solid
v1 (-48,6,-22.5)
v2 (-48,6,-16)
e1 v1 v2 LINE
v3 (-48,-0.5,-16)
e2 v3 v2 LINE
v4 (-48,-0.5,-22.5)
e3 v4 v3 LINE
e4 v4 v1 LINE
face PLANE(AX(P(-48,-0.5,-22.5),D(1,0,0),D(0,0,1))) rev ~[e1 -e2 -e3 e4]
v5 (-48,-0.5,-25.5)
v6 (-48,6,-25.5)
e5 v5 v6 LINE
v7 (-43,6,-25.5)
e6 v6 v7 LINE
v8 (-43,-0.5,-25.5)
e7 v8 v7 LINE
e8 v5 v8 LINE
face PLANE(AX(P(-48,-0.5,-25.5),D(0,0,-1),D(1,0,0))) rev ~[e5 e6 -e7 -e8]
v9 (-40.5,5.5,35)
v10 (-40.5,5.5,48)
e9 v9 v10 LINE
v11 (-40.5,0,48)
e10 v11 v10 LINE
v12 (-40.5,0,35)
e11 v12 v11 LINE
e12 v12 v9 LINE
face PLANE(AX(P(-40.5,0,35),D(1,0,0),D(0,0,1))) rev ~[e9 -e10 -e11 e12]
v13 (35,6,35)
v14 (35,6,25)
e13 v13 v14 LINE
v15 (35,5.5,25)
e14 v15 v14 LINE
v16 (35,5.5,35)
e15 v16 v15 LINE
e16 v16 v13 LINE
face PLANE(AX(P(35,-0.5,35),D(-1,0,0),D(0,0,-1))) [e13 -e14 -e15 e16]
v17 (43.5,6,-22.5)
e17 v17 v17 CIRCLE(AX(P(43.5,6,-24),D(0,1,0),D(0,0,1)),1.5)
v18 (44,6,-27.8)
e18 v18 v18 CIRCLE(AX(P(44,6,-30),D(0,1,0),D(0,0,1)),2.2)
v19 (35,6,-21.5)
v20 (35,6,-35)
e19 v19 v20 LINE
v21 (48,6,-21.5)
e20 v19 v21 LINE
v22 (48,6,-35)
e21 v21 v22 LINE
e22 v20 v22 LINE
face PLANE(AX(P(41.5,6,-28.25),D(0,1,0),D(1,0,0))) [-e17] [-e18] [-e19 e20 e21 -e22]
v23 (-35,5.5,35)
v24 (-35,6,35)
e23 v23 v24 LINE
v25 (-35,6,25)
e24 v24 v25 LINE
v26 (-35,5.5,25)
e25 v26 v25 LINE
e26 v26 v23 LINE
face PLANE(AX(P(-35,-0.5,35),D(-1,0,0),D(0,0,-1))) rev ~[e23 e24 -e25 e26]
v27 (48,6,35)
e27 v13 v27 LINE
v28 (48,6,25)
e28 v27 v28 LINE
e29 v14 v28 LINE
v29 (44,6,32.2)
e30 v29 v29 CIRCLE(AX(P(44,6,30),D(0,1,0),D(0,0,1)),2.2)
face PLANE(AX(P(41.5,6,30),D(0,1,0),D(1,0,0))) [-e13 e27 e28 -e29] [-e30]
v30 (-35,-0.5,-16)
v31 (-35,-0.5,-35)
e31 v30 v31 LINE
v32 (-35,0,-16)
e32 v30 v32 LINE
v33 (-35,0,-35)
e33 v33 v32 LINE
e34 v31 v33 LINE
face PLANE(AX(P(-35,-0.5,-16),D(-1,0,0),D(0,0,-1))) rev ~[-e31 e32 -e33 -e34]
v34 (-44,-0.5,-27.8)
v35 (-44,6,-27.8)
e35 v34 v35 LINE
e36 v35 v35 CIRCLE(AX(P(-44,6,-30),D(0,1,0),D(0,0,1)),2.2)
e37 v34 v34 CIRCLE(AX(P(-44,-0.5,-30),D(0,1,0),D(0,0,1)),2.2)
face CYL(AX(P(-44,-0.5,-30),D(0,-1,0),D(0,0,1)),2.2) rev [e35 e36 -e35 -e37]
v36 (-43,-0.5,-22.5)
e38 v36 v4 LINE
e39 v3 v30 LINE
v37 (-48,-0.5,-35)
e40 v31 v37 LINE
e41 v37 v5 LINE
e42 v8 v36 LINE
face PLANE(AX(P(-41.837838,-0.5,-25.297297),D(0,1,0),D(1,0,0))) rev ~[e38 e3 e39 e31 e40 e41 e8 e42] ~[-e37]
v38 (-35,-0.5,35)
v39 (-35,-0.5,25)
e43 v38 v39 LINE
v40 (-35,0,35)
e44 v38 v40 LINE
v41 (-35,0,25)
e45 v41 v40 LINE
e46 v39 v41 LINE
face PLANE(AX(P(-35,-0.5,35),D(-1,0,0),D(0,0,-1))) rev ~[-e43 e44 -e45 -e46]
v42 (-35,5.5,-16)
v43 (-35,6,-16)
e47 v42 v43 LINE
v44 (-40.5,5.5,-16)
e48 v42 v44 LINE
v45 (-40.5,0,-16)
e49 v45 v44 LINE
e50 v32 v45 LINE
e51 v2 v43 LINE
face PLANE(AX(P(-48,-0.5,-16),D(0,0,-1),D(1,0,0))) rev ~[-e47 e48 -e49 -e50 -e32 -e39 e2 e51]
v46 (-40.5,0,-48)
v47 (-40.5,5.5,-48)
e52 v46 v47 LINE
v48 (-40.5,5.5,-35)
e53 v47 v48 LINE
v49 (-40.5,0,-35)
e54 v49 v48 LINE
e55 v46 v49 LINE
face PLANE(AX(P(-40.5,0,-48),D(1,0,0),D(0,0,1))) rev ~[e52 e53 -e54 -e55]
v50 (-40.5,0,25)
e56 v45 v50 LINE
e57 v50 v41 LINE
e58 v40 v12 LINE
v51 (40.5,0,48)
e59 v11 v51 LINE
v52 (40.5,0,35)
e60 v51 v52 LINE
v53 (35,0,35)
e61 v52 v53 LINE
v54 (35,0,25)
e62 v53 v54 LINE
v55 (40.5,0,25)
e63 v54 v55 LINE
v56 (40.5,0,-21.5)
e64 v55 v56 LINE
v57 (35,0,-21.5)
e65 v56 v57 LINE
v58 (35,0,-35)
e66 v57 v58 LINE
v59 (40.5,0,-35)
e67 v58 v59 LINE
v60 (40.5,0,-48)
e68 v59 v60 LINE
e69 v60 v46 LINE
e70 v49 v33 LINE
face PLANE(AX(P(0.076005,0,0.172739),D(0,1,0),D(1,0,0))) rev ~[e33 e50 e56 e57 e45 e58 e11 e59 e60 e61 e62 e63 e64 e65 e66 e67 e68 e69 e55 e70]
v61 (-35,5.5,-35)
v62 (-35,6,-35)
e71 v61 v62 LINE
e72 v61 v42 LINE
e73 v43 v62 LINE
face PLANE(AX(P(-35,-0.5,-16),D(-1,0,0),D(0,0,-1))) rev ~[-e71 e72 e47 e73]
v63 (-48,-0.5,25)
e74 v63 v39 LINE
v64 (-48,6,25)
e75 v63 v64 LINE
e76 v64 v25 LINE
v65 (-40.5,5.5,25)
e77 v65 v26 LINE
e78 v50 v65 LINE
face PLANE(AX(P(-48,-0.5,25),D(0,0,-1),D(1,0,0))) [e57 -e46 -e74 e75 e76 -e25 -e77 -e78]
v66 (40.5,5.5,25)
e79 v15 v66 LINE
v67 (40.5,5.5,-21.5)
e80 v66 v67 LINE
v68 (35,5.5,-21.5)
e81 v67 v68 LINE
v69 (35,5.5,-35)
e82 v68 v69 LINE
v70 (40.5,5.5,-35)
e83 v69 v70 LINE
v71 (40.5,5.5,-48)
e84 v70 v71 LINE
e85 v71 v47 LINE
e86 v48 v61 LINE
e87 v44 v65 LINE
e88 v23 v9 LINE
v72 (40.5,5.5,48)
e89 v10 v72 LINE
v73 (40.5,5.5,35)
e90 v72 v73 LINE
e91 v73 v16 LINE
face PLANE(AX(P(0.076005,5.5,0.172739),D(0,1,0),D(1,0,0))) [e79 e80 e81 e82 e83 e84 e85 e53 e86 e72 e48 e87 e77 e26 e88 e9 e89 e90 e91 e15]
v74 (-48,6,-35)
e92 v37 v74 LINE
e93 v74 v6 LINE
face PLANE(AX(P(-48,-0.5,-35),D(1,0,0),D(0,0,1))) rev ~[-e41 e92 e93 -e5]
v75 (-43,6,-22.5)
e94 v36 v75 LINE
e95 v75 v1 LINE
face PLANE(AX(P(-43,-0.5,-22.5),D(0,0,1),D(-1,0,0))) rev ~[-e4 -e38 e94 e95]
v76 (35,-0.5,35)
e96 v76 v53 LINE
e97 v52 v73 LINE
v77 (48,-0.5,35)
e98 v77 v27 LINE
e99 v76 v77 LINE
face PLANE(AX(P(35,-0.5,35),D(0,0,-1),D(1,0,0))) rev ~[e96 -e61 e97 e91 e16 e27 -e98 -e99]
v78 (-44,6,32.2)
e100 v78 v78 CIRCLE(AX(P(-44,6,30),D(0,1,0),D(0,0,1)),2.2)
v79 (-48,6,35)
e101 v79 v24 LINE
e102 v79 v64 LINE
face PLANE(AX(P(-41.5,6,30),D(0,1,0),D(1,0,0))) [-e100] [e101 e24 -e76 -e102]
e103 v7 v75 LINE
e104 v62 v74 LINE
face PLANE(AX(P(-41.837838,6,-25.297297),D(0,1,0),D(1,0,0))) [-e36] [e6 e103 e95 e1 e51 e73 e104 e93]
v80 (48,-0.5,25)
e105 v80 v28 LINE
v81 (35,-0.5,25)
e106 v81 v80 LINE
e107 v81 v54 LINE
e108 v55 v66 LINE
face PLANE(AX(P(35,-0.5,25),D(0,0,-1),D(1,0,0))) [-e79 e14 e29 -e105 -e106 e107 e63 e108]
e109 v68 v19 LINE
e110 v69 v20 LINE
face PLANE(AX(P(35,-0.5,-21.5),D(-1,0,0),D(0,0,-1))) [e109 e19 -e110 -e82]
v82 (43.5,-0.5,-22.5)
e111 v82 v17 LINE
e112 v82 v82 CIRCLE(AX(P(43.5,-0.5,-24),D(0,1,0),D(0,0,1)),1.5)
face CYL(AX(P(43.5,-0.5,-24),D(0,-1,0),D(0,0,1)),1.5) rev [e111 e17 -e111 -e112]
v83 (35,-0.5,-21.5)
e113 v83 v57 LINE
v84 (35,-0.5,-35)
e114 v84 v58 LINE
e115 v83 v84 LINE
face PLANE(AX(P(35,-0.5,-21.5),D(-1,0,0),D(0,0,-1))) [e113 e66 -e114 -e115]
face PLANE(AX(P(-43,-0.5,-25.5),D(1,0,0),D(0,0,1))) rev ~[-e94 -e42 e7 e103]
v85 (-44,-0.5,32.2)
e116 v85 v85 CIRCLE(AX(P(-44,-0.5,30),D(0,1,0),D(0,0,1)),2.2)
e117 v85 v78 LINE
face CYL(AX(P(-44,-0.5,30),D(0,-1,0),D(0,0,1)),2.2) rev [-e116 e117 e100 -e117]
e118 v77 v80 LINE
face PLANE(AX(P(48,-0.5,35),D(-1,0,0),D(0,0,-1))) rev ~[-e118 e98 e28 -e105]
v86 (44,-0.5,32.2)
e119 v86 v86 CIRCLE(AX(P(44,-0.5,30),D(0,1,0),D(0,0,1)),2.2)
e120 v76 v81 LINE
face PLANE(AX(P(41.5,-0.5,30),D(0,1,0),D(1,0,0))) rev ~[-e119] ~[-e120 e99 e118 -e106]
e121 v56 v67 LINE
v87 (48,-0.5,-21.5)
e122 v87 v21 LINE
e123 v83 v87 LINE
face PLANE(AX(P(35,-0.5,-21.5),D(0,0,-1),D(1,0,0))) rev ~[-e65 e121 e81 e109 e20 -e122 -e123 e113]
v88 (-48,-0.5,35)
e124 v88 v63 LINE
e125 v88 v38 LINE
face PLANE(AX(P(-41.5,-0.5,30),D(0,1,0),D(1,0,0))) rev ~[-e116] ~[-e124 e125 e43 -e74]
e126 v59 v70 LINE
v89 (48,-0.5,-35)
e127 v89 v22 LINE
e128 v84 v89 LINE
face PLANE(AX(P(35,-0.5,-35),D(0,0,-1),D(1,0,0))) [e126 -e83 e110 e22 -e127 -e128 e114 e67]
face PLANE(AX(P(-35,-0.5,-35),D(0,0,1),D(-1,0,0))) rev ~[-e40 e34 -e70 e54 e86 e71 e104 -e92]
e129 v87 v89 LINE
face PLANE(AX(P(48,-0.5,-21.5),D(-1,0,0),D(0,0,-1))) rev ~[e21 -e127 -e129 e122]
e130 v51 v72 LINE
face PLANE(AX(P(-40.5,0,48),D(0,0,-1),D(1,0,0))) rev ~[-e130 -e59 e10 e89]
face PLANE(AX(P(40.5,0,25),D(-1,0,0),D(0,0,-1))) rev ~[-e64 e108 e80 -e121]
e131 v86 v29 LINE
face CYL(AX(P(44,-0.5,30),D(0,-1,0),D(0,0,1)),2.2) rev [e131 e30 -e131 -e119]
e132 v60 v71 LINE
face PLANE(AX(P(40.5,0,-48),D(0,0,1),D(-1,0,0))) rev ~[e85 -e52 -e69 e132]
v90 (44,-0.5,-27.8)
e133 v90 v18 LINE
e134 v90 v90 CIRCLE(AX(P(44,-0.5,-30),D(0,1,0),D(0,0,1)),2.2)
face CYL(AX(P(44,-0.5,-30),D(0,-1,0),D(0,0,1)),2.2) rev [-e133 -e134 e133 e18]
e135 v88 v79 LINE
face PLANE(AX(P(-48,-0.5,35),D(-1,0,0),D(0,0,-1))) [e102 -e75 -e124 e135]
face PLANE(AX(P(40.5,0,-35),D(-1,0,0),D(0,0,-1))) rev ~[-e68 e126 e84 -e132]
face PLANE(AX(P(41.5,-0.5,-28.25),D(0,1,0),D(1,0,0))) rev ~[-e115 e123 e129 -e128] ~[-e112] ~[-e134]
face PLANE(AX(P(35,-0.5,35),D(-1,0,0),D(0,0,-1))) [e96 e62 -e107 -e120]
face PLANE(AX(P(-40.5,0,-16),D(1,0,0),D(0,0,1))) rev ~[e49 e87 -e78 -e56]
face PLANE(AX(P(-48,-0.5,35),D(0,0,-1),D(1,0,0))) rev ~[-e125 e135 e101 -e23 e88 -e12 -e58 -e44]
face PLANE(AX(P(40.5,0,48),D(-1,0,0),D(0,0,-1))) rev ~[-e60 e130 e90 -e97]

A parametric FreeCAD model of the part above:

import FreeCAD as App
import Part
import Sketcher

doc = App.newDocument("Part")
body = doc.addObject("PartDesign::Body", "Body")

sketch1 = body.newObject("Sketcher::SketchObject", "Sketch")
sketch1.AttachmentSupport = (doc.getObject("XZ_Plane"), [""])
sketch1.MapMode = "FlatFace"
sketch1.addGeometry([
    Part.LineSegment(App.Vector(-40.5, 48, 0), App.Vector(40.5, 48, 0)),
    Part.LineSegment(App.Vector(40.5, 48, 0), App.Vector(40.5, 35, 0)),
    Part.LineSegment(App.Vector(40.5, 35, 0), App.Vector(35, 35, 0)),
    Part.LineSegment(App.Vector(35, 35, 0), App.Vector(35, 25, 0)),
    Part.LineSegment(App.Vector(35, 25, 0), App.Vector(40.5, 25, 0)),
    Part.LineSegment(App.Vector(40.5, 25, 0), App.Vector(40.5, -21.5, 0)),
    Part.LineSegment(App.Vector(40.5, -21.5, 0), App.Vector(35, -21.5, 0)),
    Part.LineSegment(App.Vector(35, -21.5, 0), App.Vector(35, -35, 0)),
    Part.LineSegment(App.Vector(35, -35, 0), App.Vector(40.5, -35, 0)),
    Part.LineSegment(App.Vector(40.5, -35, 0), App.Vector(40.5, -48, 0)),
    Part.LineSegment(App.Vector(40.5, -48, 0), App.Vector(-40.5, -48, 0)),
    Part.LineSegment(App.Vector(-40.5, -48, 0), App.Vector(-40.5, -35, 0)),
    Part.LineSegment(App.Vector(-40.5, -35, 0), App.Vector(-35, -35, 0)),
    Part.LineSegment(App.Vector(-35, -35, 0), App.Vector(-35, -16, 0)),
    Part.LineSegment(App.Vector(-35, -16, 0), App.Vector(-40.5, -16, 0)),
    Part.LineSegment(App.Vector(-40.5, -16, 0), App.Vector(-40.5, 25, 0)),
    Part.LineSegment(App.Vector(-40.5, 25, 0), App.Vector(-35, 25, 0)),
    Part.LineSegment(App.Vector(-35, 25, 0), App.Vector(-35, 35, 0)),
    Part.LineSegment(App.Vector(-35, 35, 0), App.Vector(-40.5, 35, 0)),
    Part.LineSegment(App.Vector(-40.5, 35, 0), App.Vector(-40.5, 48, 0)),
], False)
sketch1.addConstraint([
    Sketcher.Constraint("Coincident", 0, 2, 1, 1),
    Sketcher.Constraint("Coincident", 1, 2, 2, 1),
    Sketcher.Constraint("Coincident", 2, 2, 3, 1),
    Sketcher.Constraint("Coincident", 3, 2, 4, 1),
    Sketcher.Constraint("Coincident", 4, 2, 5, 1),
    Sketcher.Constraint("Coincident", 5, 2, 6, 1),
    Sketcher.Constraint("Coincident", 6, 2, 7, 1),
    Sketcher.Constraint("Coincident", 7, 2, 8, 1),
    Sketcher.Constraint("Coincident", 8, 2, 9, 1),
    Sketcher.Constraint("Coincident", 9, 2, 10, 1),
    Sketcher.Constraint("Coincident", 10, 2, 11, 1),
    Sketcher.Constraint("Coincident", 11, 2, 12, 1),
    Sketcher.Constraint("Coincident", 12, 2, 13, 1),
    Sketcher.Constraint("Coincident", 13, 2, 14, 1),
    Sketcher.Constraint("Coincident", 14, 2, 15, 1),
    Sketcher.Constraint("Coincident", 15, 2, 16, 1),
    Sketcher.Constraint("Coincident", 16, 2, 17, 1),
    Sketcher.Constraint("Coincident", 17, 2, 18, 1),
    Sketcher.Constraint("Coincident", 18, 2, 19, 1),
    Sketcher.Constraint("Coincident", 19, 2, 0, 1),
    Sketcher.Constraint("Horizontal", 0),
    Sketcher.Constraint("Vertical", 1),
    Sketcher.Constraint("Horizontal", 2),
    Sketcher.Constraint("Vertical", 3),
    Sketcher.Constraint("Horizontal", 4),
    Sketcher.Constraint("Vertical", 5),
    Sketcher.Constraint("Horizontal", 6),
    Sketcher.Constraint("Vertical", 7),
    Sketcher.Constraint("Horizontal", 8),
    Sketcher.Constraint("Vertical", 9),
    Sketcher.Constraint("Horizontal", 10),
    Sketcher.Constraint("Vertical", 11),
    Sketcher.Constraint("Horizontal", 12),
    Sketcher.Constraint("Vertical", 13),
    Sketcher.Constraint("Horizontal", 14),
    Sketcher.Constraint("Vertical", 15),
    Sketcher.Constraint("Horizontal", 16),
    Sketcher.Constraint("Vertical", 17),
    Sketcher.Constraint("Horizontal", 18),
    Sketcher.Constraint("Vertical", 19),
    Sketcher.Constraint("Symmetric", 0, 2, 10, 2, -1, 1),
    Sketcher.Constraint("Symmetric", 2, 2, 12, 2, -1, 1),
    Sketcher.Constraint("Symmetric", 7, 2, 17, 2, -1, 1),
    Sketcher.Constraint("Symmetric", 8, 2, 11, 2, -2),
    Sketcher.Constraint("Symmetric", 4, 2, 15, 2, -2),
    Sketcher.Constraint("Vertical", 1, 2, 4, 2),
    Sketcher.Constraint("Vertical", 3, 2, 6, 2),
    Sketcher.Constraint("Vertical", 15, 2, 18, 2),
    Sketcher.Constraint("DistanceX", 0, 1, 0, 2, 81.0),
    Sketcher.Constraint("DistanceY", 1, 2, 1, 1, 13.0),
    Sketcher.Constraint("DistanceY", 3, 2, 3, 1, 10.0),
    Sketcher.Constraint("DistanceY", 13, 1, 13, 2, 19.0),
    Sketcher.Constraint("DistanceY", 15, 1, 15, 2, 41.0),
    Sketcher.Constraint("DistanceX", 2, 2, 2, 1, 5.5),
    Sketcher.Constraint("DistanceY", 5, 2, 5, 1, 46.5),
])
pad1 = body.newObject("PartDesign::Pad", "Pad")
pad1.Profile = sketch1
pad1.Length = 5.5
pad1.Reversed = True

sketch2 = body.newObject("Sketcher::SketchObject", "Sketch001")
sketch2.AttachmentSupport = (doc.getObject("XZ_Plane"), [""])
sketch2.MapMode = "FlatFace"
sketch2.addGeometry([
    Part.LineSegment(App.Vector(35, 25, 0), App.Vector(35, 35, 0)),
    Part.LineSegment(App.Vector(35, 35, 0), App.Vector(48, 35, 0)),
    Part.LineSegment(App.Vector(48, 35, 0), App.Vector(48, 25, 0)),
    Part.LineSegment(App.Vector(48, 25, 0), App.Vector(35, 25, 0)),
    Part.Circle(App.Vector(44, 30, 0), App.Vector(0, 0, 1), 2.2),
    Part.LineSegment(App.Vector(-48, 25, 0), App.Vector(-48, 35, 0)),
    Part.LineSegment(App.Vector(-48, 35, 0), App.Vector(-35, 35, 0)),
    Part.LineSegment(App.Vector(-35, 35, 0), App.Vector(-35, 25, 0)),
    Part.LineSegment(App.Vector(-35, 25, 0), App.Vector(-48, 25, 0)),
    Part.Circle(App.Vector(-44, 30, 0), App.Vector(0, 0, 1), 2.2),
    Part.LineSegment(App.Vector(35, -35, 0), App.Vector(35, -21.5, 0)),
    Part.LineSegment(App.Vector(35, -21.5, 0), App.Vector(48, -21.5, 0)),
    Part.LineSegment(App.Vector(48, -21.5, 0), App.Vector(48, -35, 0)),
    Part.LineSegment(App.Vector(48, -35, 0), App.Vector(35, -35, 0)),
    Part.Circle(App.Vector(43.5, -24, 0), App.Vector(0, 0, 1), 1.5),
    Part.Circle(App.Vector(44, -30, 0), App.Vector(0, 0, 1), 2.2),
    Part.LineSegment(App.Vector(-48, -16, 0), App.Vector(-35, -16, 0)),
    Part.LineSegment(App.Vector(-35, -16, 0), App.Vector(-35, -35, 0)),
    Part.LineSegment(App.Vector(-35, -35, 0), App.Vector(-48, -35, 0)),
    Part.LineSegment(App.Vector(-48, -35, 0), App.Vector(-48, -25.5, 0)),
    Part.LineSegment(App.Vector(-48, -25.5, 0), App.Vector(-43, -25.5, 0)),
    Part.LineSegment(App.Vector(-43, -25.5, 0), App.Vector(-43, -22.5, 0)),
    Part.LineSegment(App.Vector(-43, -22.5, 0), App.Vector(-48, -22.5, 0)),
    Part.LineSegment(App.Vector(-48, -22.5, 0), App.Vector(-48, -16, 0)),
    Part.Circle(App.Vector(-44, -30, 0), App.Vector(0, 0, 1), 2.2),
], False)
sketch2.addConstraint([
    Sketcher.Constraint("Coincident", 0, 2, 1, 1),
    Sketcher.Constraint("Coincident", 1, 2, 2, 1),
    Sketcher.Constraint("Coincident", 2, 2, 3, 1),
    Sketcher.Constraint("Coincident", 3, 2, 0, 1),
    Sketcher.Constraint("Coincident", 5, 2, 6, 1),
    Sketcher.Constraint("Coincident", 6, 2, 7, 1),
    Sketcher.Constraint("Coincident", 7, 2, 8, 1),
    Sketcher.Constraint("Coincident", 8, 2, 5, 1),
    Sketcher.Constraint("Coincident", 10, 2, 11, 1),
    Sketcher.Constraint("Coincident", 11, 2, 12, 1),
    Sketcher.Constraint("Coincident", 12, 2, 13, 1),
    Sketcher.Constraint("Coincident", 13, 2, 10, 1),
    Sketcher.Constraint("Coincident", 16, 2, 17, 1),
    Sketcher.Constraint("Coincident", 17, 2, 18, 1),
    Sketcher.Constraint("Coincident", 18, 2, 19, 1),
    Sketcher.Constraint("Coincident", 19, 2, 20, 1),
    Sketcher.Constraint("Coincident", 20, 2, 21, 1),
    Sketcher.Constraint("Coincident", 21, 2, 22, 1),
    Sketcher.Constraint("Coincident", 22, 2, 23, 1),
    Sketcher.Constraint("Coincident", 23, 2, 16, 1),
    Sketcher.Constraint("Vertical", 0),
    Sketcher.Constraint("Horizontal", 1),
    Sketcher.Constraint("Vertical", 2),
    Sketcher.Constraint("Horizontal", 3),
    Sketcher.Constraint("Vertical", 5),
    Sketcher.Constraint("Horizontal", 6),
    Sketcher.Constraint("Vertical", 7),
    Sketcher.Constraint("Horizontal", 8),
    Sketcher.Constraint("Vertical", 10),
    Sketcher.Constraint("Horizontal", 11),
    Sketcher.Constraint("Vertical", 12),
    Sketcher.Constraint("Horizontal", 13),
    Sketcher.Constraint("Horizontal", 16),
    Sketcher.Constraint("Vertical", 17),
    Sketcher.Constraint("Horizontal", 18),
    Sketcher.Constraint("Vertical", 19),
    Sketcher.Constraint("Horizontal", 20),
    Sketcher.Constraint("Vertical", 21),
    Sketcher.Constraint("Horizontal", 22),
    Sketcher.Constraint("Vertical", 23),
    Sketcher.Constraint("Equal", 4, 9),
    Sketcher.Constraint("Equal", 9, 15),
    Sketcher.Constraint("Equal", 15, 24),
    Sketcher.Constraint("Symmetric", 9, 3, 15, 3, -1, 1),
    Sketcher.Constraint("Symmetric", 4, 3, 24, 3, -1, 1),
    Sketcher.Constraint("Symmetric", 5, 2, 12, 2, -1, 1),
    Sketcher.Constraint("Symmetric", 0, 2, 17, 2, -1, 1),
    Sketcher.Constraint("Symmetric", 4, 3, 9, 3, -2),
    Sketcher.Constraint("Symmetric", 1, 2, 5, 2, -2),
    Sketcher.Constraint("Symmetric", 3, 2, 7, 2, -2),
    Sketcher.Constraint("Vertical", 3, 2, 10, 2),
    Sketcher.Constraint("Vertical", 8, 2, 18, 2),
    Sketcher.Constraint("Vertical", 19, 2, 22, 2),
    Sketcher.Constraint("Diameter", 14, 3.0),
    Sketcher.Constraint("Diameter", 4, 4.4),
    Sketcher.Constraint("DistanceX", 1, 1, 1, 2, 13.0),
    Sketcher.Constraint("DistanceX", 20, 1, 20, 2, 5.0),
    Sketcher.Constraint("DistanceY", 0, 1, 0, 2, 10.0),
    Sketcher.Constraint("DistanceY", 17, 2, 17, 1, 19.0),
    Sketcher.Constraint("DistanceY", 21, 1, 21, 2, 3.0),
    Sketcher.Constraint("DistanceY", 10, 1, 10, 2, 13.5),
    Sketcher.Constraint("DistanceY", 19, 1, 19, 2, 9.5),
    Sketcher.Constraint("DistanceX", -1, 1, 4, 3, 44.0),
    Sketcher.Constraint("DistanceY", -1, 1, 4, 3, 30.0),
    Sketcher.Constraint("DistanceY", 14, 3, -1, 1, 24.0),
    Sketcher.Constraint("DistanceX", -1, 1, 0, 2, 35.0),
    Sketcher.Constraint("DistanceY", -1, 1, 0, 2, 35.0),
    Sketcher.Constraint("DistanceX", -1, 1, 14, 3, 43.5),
])
pad2 = body.newObject("PartDesign::Pad", "Pad001")
pad2.Profile = sketch2
pad2.Type = "TwoLengths"
pad2.Length = 6
pad2.Length2 = 0.5
pad2.Reversed = True

doc.recompute()
